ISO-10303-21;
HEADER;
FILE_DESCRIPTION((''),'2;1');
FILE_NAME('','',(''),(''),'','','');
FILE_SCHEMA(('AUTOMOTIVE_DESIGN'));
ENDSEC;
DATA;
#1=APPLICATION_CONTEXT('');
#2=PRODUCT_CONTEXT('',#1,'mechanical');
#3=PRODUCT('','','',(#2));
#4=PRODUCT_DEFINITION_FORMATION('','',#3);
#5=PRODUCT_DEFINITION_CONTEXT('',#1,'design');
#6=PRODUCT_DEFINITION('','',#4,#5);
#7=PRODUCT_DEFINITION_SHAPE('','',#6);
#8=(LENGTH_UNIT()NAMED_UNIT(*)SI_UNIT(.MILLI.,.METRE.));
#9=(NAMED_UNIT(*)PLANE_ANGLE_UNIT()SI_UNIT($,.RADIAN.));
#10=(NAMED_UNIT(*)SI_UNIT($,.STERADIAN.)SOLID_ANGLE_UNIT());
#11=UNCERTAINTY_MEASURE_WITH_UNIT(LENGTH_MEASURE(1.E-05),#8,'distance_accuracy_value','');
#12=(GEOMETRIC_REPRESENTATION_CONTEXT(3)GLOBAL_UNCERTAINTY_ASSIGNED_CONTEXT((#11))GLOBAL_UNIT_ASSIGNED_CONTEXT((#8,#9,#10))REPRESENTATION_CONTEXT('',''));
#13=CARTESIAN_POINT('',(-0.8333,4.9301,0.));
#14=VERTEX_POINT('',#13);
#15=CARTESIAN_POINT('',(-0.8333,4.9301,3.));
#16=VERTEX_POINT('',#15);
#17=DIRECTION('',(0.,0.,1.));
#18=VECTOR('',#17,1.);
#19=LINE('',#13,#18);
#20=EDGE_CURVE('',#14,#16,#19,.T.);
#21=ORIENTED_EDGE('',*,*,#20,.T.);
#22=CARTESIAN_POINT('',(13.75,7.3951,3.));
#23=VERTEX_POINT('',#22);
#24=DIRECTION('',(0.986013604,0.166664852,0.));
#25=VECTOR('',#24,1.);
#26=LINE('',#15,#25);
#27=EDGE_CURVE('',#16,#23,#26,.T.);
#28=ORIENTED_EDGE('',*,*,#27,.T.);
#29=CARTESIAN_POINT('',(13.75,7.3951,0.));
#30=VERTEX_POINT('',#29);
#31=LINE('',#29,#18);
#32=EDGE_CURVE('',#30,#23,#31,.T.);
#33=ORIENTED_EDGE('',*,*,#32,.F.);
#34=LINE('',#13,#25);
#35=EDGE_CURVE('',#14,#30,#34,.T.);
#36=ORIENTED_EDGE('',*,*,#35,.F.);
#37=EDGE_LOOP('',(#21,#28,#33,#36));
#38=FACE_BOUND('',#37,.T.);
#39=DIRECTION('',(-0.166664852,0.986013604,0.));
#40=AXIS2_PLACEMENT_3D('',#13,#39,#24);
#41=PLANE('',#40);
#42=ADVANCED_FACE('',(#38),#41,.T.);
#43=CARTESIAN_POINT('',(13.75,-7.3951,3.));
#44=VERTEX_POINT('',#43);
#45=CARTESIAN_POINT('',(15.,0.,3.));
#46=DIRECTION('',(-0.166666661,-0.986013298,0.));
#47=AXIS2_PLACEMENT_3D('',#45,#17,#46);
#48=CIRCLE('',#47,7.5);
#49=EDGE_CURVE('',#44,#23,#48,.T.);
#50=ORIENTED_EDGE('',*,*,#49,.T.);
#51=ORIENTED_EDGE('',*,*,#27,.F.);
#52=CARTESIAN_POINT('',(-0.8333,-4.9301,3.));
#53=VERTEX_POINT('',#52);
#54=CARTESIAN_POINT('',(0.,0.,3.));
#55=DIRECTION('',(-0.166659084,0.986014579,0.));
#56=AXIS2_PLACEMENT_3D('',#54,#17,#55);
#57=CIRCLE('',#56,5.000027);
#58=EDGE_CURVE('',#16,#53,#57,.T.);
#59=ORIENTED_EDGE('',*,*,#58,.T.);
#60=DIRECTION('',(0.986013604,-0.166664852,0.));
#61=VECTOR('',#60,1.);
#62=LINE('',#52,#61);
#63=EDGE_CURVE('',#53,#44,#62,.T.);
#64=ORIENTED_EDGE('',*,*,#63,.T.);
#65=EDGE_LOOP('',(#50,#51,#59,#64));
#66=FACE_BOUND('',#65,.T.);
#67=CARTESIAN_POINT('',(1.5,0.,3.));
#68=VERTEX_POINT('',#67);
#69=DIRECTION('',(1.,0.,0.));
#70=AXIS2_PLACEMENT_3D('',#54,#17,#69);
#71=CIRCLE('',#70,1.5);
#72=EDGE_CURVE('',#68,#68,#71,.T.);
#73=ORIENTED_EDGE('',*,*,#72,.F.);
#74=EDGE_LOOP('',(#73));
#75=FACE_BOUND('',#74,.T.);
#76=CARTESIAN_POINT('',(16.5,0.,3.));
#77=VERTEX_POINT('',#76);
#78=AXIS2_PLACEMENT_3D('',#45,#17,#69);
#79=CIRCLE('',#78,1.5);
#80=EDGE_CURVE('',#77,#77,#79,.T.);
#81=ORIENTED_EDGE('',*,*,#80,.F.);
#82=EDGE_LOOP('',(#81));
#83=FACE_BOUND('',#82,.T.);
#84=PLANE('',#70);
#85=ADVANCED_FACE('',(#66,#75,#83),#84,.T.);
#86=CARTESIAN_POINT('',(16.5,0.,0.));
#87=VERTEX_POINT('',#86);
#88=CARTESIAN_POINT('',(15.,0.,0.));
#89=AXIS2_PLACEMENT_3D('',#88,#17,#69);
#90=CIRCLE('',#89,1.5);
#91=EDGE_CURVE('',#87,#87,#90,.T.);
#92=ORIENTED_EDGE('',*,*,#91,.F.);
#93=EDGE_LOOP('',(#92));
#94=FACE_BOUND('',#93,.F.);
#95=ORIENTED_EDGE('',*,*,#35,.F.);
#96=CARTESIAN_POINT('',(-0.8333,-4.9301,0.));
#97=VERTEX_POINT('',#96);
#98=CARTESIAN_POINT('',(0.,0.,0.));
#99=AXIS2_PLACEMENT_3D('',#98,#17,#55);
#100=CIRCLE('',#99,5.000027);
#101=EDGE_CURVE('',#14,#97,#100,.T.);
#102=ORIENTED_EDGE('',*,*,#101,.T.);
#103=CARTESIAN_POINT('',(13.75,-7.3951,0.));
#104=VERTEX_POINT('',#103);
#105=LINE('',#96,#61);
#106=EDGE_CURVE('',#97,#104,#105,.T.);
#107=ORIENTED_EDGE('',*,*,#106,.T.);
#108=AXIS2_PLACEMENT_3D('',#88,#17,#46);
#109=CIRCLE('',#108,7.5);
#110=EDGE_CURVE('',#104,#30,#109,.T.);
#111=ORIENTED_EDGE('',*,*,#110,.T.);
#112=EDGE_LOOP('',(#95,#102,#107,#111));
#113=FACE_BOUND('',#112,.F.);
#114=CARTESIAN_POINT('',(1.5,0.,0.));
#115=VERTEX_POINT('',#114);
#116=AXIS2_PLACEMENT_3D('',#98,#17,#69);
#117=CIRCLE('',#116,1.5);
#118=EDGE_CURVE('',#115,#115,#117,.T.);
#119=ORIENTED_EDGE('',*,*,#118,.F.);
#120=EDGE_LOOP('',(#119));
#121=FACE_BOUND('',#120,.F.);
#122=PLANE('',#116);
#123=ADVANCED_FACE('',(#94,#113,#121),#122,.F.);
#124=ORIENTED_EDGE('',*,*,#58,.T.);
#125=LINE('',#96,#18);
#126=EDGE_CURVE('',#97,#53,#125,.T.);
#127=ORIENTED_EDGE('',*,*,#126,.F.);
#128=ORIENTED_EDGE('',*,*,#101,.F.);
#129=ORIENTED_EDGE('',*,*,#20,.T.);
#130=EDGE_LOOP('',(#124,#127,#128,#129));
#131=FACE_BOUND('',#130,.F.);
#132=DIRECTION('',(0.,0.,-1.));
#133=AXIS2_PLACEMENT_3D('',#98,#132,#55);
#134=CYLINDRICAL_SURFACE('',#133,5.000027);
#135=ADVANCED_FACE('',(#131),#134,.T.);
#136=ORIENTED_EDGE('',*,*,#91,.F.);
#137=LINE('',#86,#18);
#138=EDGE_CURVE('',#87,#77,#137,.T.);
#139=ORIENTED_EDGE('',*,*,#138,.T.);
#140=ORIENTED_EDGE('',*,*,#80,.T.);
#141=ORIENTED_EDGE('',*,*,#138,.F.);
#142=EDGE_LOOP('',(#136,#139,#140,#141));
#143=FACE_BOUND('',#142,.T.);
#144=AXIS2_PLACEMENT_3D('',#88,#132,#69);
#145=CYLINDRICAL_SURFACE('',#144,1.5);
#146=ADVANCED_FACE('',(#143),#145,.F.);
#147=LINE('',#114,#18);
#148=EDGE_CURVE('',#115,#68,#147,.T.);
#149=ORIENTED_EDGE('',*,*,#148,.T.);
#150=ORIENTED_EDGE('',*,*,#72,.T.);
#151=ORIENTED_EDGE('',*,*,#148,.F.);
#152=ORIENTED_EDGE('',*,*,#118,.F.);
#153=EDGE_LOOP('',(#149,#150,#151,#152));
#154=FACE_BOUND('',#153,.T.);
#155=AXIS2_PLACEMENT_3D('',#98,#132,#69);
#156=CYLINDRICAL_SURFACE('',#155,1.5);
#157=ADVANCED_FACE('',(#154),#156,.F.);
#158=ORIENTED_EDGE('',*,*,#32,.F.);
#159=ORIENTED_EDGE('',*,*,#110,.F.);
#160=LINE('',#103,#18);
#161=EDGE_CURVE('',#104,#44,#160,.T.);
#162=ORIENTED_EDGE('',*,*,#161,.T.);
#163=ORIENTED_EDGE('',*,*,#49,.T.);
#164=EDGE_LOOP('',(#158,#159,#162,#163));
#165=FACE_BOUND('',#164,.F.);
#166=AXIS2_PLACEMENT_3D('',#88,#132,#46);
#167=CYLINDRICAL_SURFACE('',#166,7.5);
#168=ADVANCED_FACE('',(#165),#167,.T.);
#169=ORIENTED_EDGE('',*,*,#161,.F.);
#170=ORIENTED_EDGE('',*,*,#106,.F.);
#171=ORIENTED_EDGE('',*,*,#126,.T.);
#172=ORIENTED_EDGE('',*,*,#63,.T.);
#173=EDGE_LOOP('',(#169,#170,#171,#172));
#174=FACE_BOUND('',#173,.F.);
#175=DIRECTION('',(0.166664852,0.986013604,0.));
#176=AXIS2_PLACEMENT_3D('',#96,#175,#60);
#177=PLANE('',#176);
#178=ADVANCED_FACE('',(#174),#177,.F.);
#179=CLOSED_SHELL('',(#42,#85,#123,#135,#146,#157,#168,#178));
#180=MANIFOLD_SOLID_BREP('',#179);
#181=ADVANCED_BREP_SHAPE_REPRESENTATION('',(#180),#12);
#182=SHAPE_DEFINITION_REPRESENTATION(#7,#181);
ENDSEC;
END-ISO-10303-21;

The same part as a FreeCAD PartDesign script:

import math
import FreeCAD as App
import Part
import Sketcher

V = App.Vector

doc = App.newDocument("Part")
params = doc.addObject("Spreadsheet::Sheet", "Params")
for row, (alias, value) in enumerate([
    ("sketch1_diameter", "3 mm"),
    ("sketch1_radius", "5 mm"),
    ("sketch1_radius2", "7.5 mm"),
    ("pad1_length", "3 mm"),
], start=1):
    params.set(f"A{row}", alias)
    params.set(f"B{row}", "=" + value)
    params.setAlias(f"B{row}", alias)

body = doc.addObject("PartDesign::Body", "Body")

# Sketch on XY plane
sketch1 = body.newObject("Sketcher::SketchObject", "Sketch")
sketch1.AttachmentSupport = (doc.getObject("XY_Plane"), [""])
sketch1.MapMode = "FlatFace"
sketch1.addGeometry(Part.LineSegment(V(13.8, 7.4, 0), V(-0.8, 4.9, 0)), False)
sketch1.addGeometry(Part.ArcOfCircle(Part.Circle(V(0, 0, 0), V(0, 0, 1), 5), math.radians(100), math.radians(260)), False)
sketch1.addGeometry(Part.LineSegment(V(-0.8, -4.9, 0), V(13.8, -7.4, 0)), False)
sketch1.addGeometry(Part.ArcOfCircle(Part.Circle(V(15, 0, 0), V(0, 0, 1), 7.5), math.radians(-100), math.radians(100)), False)
sketch1.addGeometry(Part.Circle(V(0, 0, 0), V(0, 0, 1), 1.5), False)
sketch1.addGeometry(Part.Circle(V(15, 0, 0), V(0, 0, 1), 1.5), False)
sketch1.addConstraint(Sketcher.Constraint("Tangent", 0, 2, 1, 1))
sketch1.addConstraint(Sketcher.Constraint("Tangent", 1, 2, 2, 1))
sketch1.addConstraint(Sketcher.Constraint("Tangent", 2, 2, 3, 1))
sketch1.addConstraint(Sketcher.Constraint("Tangent", 3, 2, 0, 1))
sketch1.addConstraint(Sketcher.Constraint("Coincident", 1, 3, -1, 1))
sketch1.addConstraint(Sketcher.Constraint("Coincident", 4, 3, -1, 1))
sketch1.addConstraint(Sketcher.Constraint("Coincident", 5, 3, 3, 3))
sketch1.addConstraint(Sketcher.Constraint("Equal", 4, 5))
sketch1.addConstraint(Sketcher.Constraint("PointOnObject", 3, 3, -1))
sketch1.addConstraint(Sketcher.Constraint("Diameter", 4, 3.0))
sketch1.addConstraint(Sketcher.Constraint("Radius", 1, 5.0))
sketch1.addConstraint(Sketcher.Constraint("Radius", 3, 7.5))
sketch1.addConstraint(Sketcher.Constraint("DistanceX", -1, 1, 3, 3, 15.0))
sketch1.setExpression("Constraints[9]", "Params.sketch1_diameter")
sketch1.setExpression("Constraints[10]", "Params.sketch1_radius")
sketch1.setExpression("Constraints[11]", "Params.sketch1_radius2")
pad1 = body.newObject("PartDesign::Pad", "Pad")
pad1.Profile = sketch1
pad1.setExpression("Length", "Params.pad1_length")

doc.recompute()
